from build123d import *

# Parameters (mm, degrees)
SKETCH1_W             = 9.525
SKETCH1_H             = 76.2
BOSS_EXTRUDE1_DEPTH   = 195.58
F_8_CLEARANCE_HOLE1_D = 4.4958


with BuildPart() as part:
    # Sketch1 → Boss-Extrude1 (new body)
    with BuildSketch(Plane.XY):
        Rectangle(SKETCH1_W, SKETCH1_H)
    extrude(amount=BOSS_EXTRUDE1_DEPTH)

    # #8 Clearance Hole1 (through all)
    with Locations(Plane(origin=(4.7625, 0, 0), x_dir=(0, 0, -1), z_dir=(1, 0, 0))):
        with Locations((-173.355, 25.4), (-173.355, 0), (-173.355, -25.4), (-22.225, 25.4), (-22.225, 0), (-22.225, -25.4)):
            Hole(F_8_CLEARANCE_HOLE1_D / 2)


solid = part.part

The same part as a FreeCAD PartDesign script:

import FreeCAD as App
import Part
import Sketcher
Q = App.Units.Quantity


def add_polygon(sketch, points):
    """Adds a closed chain of lines whose ends are joined by coincident constraints."""
    first, n = sketch.GeometryCount, len(points)
    for a, b in zip(points, points[1:] + points[:1]):
        sketch.addGeometry(Part.LineSegment(App.Vector(*a, 0), App.Vector(*b, 0)), False)
    for i in range(n):
        sketch.addConstraint(Sketcher.Constraint("Coincident", first + i, 2, first + (i + 1) % n, 1))

doc = App.newDocument("Part")
params = doc.addObject("Spreadsheet::Sheet", "Params")
for row, (alias, value) in enumerate([
    ("sketch1_height", "3 in"),
    ("sketch1_width", "0.375 in"),
    ("pad1_length", "7.7 in"),
    ("sketch2_diameter", "0.177 in"),
    ("hole_diameter", "0.177 in"),
], start=1):
    params.set(f"A{row}", alias)
    params.set(f"B{row}", "=" + value)
    params.setAlias(f"B{row}", alias)

body = doc.addObject("PartDesign::Body", "Body")

# Sketch on XY plane
sketch1 = body.newObject("Sketcher::SketchObject", "Sketch")
sketch1.AttachmentSupport = (doc.getObject("XY_Plane"), [""])
sketch1.MapMode = "FlatFace"
add_polygon(sketch1, [(-4.7625, 38.1), (-4.7625, -38.1), (4.7625, -38.1), (4.7625, 38.1)])  # lines 0-3
sketch1.addConstraint([
    Sketcher.Constraint("Vertical", 0),
    Sketcher.Constraint("Horizontal", 1),
    Sketcher.Constraint("Vertical", 2),
    Sketcher.Constraint("Horizontal", 3),
    Sketcher.Constraint("Symmetric", 0, 2, 2, 2, -1, 1),
    Sketcher.Constraint("DistanceY", 0, 2, 0, 1, Q("3 in")),
    Sketcher.Constraint("DistanceX", 1, 1, 1, 2, Q("0.375 in")),
])
sketch1.setExpression("Constraints[9]", "Params.sketch1_height")
sketch1.setExpression("Constraints[10]", "Params.sketch1_width")
pad1 = body.newObject("PartDesign::Pad", "Pad")
pad1.Profile = sketch1
pad1.setExpression("Length", "Params.pad1_length")

# Sketch on YZ plane
sketch2 = body.newObject("Sketcher::SketchObject", "Sketch001")
sketch2.AttachmentSupport = (doc.getObject("YZ_Plane"), [""])
sketch2.MapMode = "FlatFace"
sketch2.AttachmentOffset = App.Placement(App.Vector(0, 0, 0.1875 * 25.4), App.Rotation())
sketch2.addGeometry([
    Part.Circle(App.Vector(25.4, 173.355, 0), App.Vector(0, 0, 1), 2.2479),  # 0
    Part.Circle(App.Vector(0, 173.355, 0), App.Vector(0, 0, 1), 2.2479),  # 1
    Part.Circle(App.Vector(-25.4, 173.355, 0), App.Vector(0, 0, 1), 2.2479),  # 2
    Part.Circle(App.Vector(25.4, 22.225, 0), App.Vector(0, 0, 1), 2.2479),  # 3
    Part.Circle(App.Vector(0, 22.225, 0), App.Vector(0, 0, 1), 2.2479),  # 4
    Part.Circle(App.Vector(-25.4, 22.225, 0), App.Vector(0, 0, 1), 2.2479),  # 5
], False)
sketch2.addConstraint([
    Sketcher.Constraint("Equal", 0, 1),
    Sketcher.Constraint("Equal", 1, 2),
    Sketcher.Constraint("Equal", 2, 3),
    Sketcher.Constraint("Equal", 3, 4),
    Sketcher.Constraint("Equal", 4, 5),
    Sketcher.Constraint("Symmetric", 0, 3, 2, 3, -2),
    Sketcher.Constraint("Symmetric", 3, 3, 5, 3, -2),
    Sketcher.Constraint("PointOnObject", 1, 3, -2),
    Sketcher.Constraint("PointOnObject", 4, 3, -2),
    Sketcher.Constraint("Horizontal", 0, 3, 1, 3),
    Sketcher.Constraint("Horizontal", 3, 3, 4, 3),
    Sketcher.Constraint("Vertical", 0, 3, 3, 3),
    Sketcher.Constraint("Diameter", 0, Q("0.177 in")),
    Sketcher.Constraint("DistanceX", -1, 1, 0, 3, Q("1 in")),
    Sketcher.Constraint("DistanceY", 3, 3, 0, 3, Q("5.95 in")),
    Sketcher.Constraint("DistanceY", -1, 1, 0, 3, Q("6.825 in")),
])
sketch2.setExpression("Constraints[12]", "Params.sketch2_diameter")
doc.recompute()
hole = body.newObject("PartDesign::Hole", "Hole")
hole.Profile = sketch2
hole.ThreadType = "None"
hole.setExpression("Diameter", "Params.hole_diameter")
hole.DepthType = "ThroughAll"

doc.recompute()
